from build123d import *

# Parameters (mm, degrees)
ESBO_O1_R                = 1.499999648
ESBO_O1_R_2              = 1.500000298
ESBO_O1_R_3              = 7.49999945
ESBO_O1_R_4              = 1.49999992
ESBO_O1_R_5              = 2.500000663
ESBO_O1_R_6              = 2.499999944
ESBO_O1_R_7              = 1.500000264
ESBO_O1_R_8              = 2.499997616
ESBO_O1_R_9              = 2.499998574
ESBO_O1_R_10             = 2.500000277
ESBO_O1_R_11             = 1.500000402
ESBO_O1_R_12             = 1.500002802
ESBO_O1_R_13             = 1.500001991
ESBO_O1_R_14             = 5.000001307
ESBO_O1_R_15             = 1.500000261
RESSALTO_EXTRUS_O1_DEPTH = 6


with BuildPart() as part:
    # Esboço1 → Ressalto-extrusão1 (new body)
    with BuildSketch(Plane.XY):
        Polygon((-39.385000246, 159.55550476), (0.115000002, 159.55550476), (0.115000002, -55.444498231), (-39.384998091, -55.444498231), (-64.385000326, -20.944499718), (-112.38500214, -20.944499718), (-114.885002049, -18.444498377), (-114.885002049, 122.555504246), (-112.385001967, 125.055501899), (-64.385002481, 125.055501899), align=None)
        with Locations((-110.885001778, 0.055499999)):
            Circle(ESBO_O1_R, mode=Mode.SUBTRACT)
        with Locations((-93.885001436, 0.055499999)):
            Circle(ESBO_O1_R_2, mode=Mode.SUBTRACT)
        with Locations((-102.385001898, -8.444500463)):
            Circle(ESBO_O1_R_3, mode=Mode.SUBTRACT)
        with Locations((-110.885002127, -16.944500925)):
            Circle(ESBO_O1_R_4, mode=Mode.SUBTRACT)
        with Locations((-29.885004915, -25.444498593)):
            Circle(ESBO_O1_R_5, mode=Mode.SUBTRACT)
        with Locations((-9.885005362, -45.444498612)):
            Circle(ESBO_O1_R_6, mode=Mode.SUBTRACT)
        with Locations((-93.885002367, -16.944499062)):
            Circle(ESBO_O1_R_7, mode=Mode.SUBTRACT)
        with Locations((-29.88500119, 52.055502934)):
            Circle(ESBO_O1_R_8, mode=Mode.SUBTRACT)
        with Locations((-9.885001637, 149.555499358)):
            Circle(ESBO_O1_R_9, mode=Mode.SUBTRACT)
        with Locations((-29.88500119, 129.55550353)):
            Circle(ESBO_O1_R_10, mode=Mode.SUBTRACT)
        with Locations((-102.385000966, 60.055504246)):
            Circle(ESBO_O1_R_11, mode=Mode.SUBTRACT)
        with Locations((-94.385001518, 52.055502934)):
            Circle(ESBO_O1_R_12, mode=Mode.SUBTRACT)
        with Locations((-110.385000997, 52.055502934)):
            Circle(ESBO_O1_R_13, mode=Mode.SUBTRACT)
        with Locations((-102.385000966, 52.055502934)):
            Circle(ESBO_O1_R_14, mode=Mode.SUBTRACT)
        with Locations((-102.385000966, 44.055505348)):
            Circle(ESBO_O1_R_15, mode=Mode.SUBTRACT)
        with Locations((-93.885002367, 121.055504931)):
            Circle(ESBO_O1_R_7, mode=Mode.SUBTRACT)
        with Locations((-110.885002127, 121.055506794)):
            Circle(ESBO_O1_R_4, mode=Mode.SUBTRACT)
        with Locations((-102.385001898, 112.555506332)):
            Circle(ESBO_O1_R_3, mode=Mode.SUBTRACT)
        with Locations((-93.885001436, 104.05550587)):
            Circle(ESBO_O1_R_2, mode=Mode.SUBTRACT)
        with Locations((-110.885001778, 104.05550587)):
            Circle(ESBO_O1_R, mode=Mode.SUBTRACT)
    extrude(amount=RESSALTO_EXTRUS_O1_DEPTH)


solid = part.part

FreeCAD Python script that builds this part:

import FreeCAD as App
import Part
import Sketcher

V = App.Vector
Q = App.Units.Quantity

doc = App.newDocument("Part")
body = doc.addObject("PartDesign::Body", "Body")

sketch1 = doc.addObject("Sketcher::SketchObject", "Sketch")
body.addObject(sketch1)
sketch1.AttachmentSupport = (doc.XY_Plane, [""])
sketch1.MapMode = "FlatFace"
sketch1.addGeometry([
    Part.LineSegment(V(0.1, 159.6, 0), V(-39.4, 159.6, 0)),
    Part.LineSegment(V(-39.4, 159.6, 0), V(-64.4, 125.1, 0)),
    Part.LineSegment(V(-64.4, 125.1, 0), V(-112.4, 125.1, 0)),
    Part.LineSegment(V(-112.4, 125.1, 0), V(-114.9, 122.6, 0)),
    Part.LineSegment(V(-114.9, 122.6, 0), V(-114.9, -18.4, 0)),
    Part.LineSegment(V(-114.9, -18.4, 0), V(-112.4, -20.9, 0)),
    Part.LineSegment(V(-112.4, -20.9, 0), V(-64.4, -20.9, 0)),
    Part.LineSegment(V(-64.4, -20.9, 0), V(-39.4, -55.4, 0)),
    Part.LineSegment(V(-39.4, -55.4, 0), V(0.1, -55.4, 0)),
    Part.LineSegment(V(0.1, -55.4, 0), V(0.1, 159.6, 0)),
    Part.Circle(V(-9.9, -45.4, 0), V(0, 0, 1), 2.5),
    Part.Circle(V(-29.9, -25.4, 0), V(0, 0, 1), 2.5),
    Part.Circle(V(-93.9, -16.9, 0), V(0, 0, 1), 1.5),
    Part.Circle(V(-93.9, 0.1, 0), V(0, 0, 1), 1.5),
    Part.Circle(V(-110.9, -16.9, 0), V(0, 0, 1), 1.5),
    Part.Circle(V(-102.4, -8.4, 0), V(0, 0, 1), 7.5),
    Part.Circle(V(-110.9, 0.1, 0), V(0, 0, 1), 1.5),
    Part.Circle(V(-102.4, 44.1, 0), V(0, 0, 1), 1.5),
    Part.Circle(V(-29.9, 52.1, 0), V(0, 0, 1), 2.5),
    Part.Circle(V(-9.9, 149.6, 0), V(0, 0, 1), 2.5),
    Part.Circle(V(-29.9, 129.6, 0), V(0, 0, 1), 2.5),
    Part.Circle(V(-94.4, 52.1, 0), V(0, 0, 1), 1.5),
    Part.Circle(V(-102.4, 52.1, 0), V(0, 0, 1), 5),
    Part.Circle(V(-102.4, 60.1, 0), V(0, 0, 1), 1.5),
    Part.Circle(V(-110.4, 52.1, 0), V(0, 0, 1), 1.5),
    Part.Circle(V(-93.9, 104.1, 0), V(0, 0, 1), 1.5),
    Part.Circle(V(-93.9, 121.1, 0), V(0, 0, 1), 1.5),
    Part.Circle(V(-102.4, 112.6, 0), V(0, 0, 1), 7.5),
    Part.Circle(V(-110.9, 104.1, 0), V(0, 0, 1), 1.5),
    Part.Circle(V(-110.9, 121.1, 0), V(0, 0, 1), 1.5),
], False)
sketch1.addConstraint([
    Sketcher.Constraint("Coincident", 0, 2, 1, 1),
    Sketcher.Constraint("Coincident", 1, 2, 2, 1),
    Sketcher.Constraint("Coincident", 2, 2, 3, 1),
    Sketcher.Constraint("Coincident", 3, 2, 4, 1),
    Sketcher.Constraint("Coincident", 4, 2, 5, 1),
    Sketcher.Constraint("Coincident", 5, 2, 6, 1),
    Sketcher.Constraint("Coincident", 6, 2, 7, 1),
    Sketcher.Constraint("Coincident", 7, 2, 8, 1),
    Sketcher.Constraint("Coincident", 8, 2, 9, 1),
    Sketcher.Constraint("Coincident", 9, 2, 0, 1),
    Sketcher.Constraint("Horizontal", 0),
    Sketcher.Constraint("Horizontal", 2),
    Sketcher.Constraint("Vertical", 4),
    Sketcher.Constraint("Horizontal", 6),
    Sketcher.Constraint("Horizontal", 8),
    Sketcher.Constraint("Vertical", 9),
    Sketcher.Constraint("Equal", 10, 11),
    Sketcher.Constraint("Equal", 12, 13),
    Sketcher.Constraint("Equal", 13, 14),
    Sketcher.Constraint("Equal", 14, 16),
    Sketcher.Constraint("Equal", 16, 17),
    Sketcher.Constraint("Equal", 18, 19),
    Sketcher.Constraint("Equal", 19, 20),
    Sketcher.Constraint("Equal", 17, 23),
    Sketcher.Constraint("Equal", 23, 24),
    Sketcher.Constraint("Equal", 24, 25),
    Sketcher.Constraint("Equal", 25, 26),
    Sketcher.Constraint("Equal", 15, 27),
    Sketcher.Constraint("Equal", 26, 28),
    Sketcher.Constraint("Equal", 28, 29),
    Sketcher.Constraint("Perpendicular", 3, 5),
    Sketcher.Constraint("Horizontal", 12, 3, 14, 3),
    Sketcher.Constraint("Horizontal", 13, 3, 16, 3),
    Sketcher.Constraint("Horizontal", 18, 3, 21, 3),
    Sketcher.Constraint("Horizontal", 21, 3, 22, 3),
    Sketcher.Constraint("Horizontal", 22, 3, 24, 3),
    Sketcher.Constraint("Horizontal", 25, 3, 28, 3),
    Sketcher.Constraint("Horizontal", 26, 3, 29, 3),
    Sketcher.Constraint("Vertical", 12, 3, 13, 3),
    Sketcher.Constraint("Vertical", 14, 3, 16, 3),
    Sketcher.Constraint("Vertical", 15, 3, 17, 3),
    Sketcher.Constraint("Vertical", 18, 3, 20, 3),
    Sketcher.Constraint("Vertical", 17, 3, 22, 3),
    Sketcher.Constraint("Vertical", 22, 3, 23, 3),
    Sketcher.Constraint("Vertical", 13, 3, 25, 3),
    Sketcher.Constraint("Vertical", 25, 3, 26, 3),
    Sketcher.Constraint("Vertical", 23, 3, 27, 3),
    Sketcher.Constraint("Vertical", 16, 3, 28, 3),
    Sketcher.Constraint("Vertical", 28, 3, 29, 3),
    Sketcher.Constraint("Vertical", 2, 2, 5, 2),
    Sketcher.Constraint("Diameter", 10, Q("5 mm")),
    Sketcher.Constraint("Diameter", 12, Q("3.000001 mm")),
    Sketcher.Constraint("Diameter", 15, Q("14.999999 mm")),
    Sketcher.Constraint("Diameter", 20, Q("5.000001 mm")),
    Sketcher.Constraint("DistanceX", 2, 2, 2, 1, Q("47.999999 mm")),
    Sketcher.Constraint("DistanceX", 6, 1, 6, 2, Q("48.000002 mm")),
    Sketcher.Constraint("Angle", 5, Q("-45.000016 deg")),
    Sketcher.Constraint("DistanceX", 0, 2, 0, 1, Q("39.5 mm")),
    Sketcher.Constraint("DistanceX", 8, 1, 8, 2, Q("39.499998 mm")),
    Sketcher.Constraint("DistanceX", 11, 3, 10, 3, Q("20 mm")),
    Sketcher.Constraint("DistanceY", 10, 3, 11, 3, Q("20 mm")),
    Sketcher.Constraint("DistanceY", 12, 3, 13, 3, Q("16.999999 mm")),
    Sketcher.Constraint("DistanceX", 14, 3, 12, 3, Q("17 mm")),
    Sketcher.Constraint("DistanceY", 11, 3, 15, 3, Q("16.999998 mm")),
    Sketcher.Constraint("DistanceX", 13, 3, 18, 3, Q("64 mm")),
    Sketcher.Constraint("DistanceY", 12, 3, 18, 3, Q("69.000002 mm")),
    Sketcher.Constraint("DistanceX", 18, 3, 19, 3, Q("20 mm")),
    Sketcher.Constraint("DistanceX", 17, 3, 21, 3, Q("7.999999 mm")),
    Sketcher.Constraint("DistanceY", 22, 3, 23, 3, Q("8.000001 mm")),
    Sketcher.Constraint("DistanceY", 17, 3, 23, 3, Q("15.999999 mm")),
    Sketcher.Constraint("DistanceX", 24, 3, 22, 3, Q("8 mm")),
    Sketcher.Constraint("DistanceY", 23, 3, 25, 3, Q("44.000002 mm")),
    Sketcher.Constraint("DistanceY", 25, 3, 26, 3, Q("16.999999 mm")),
    Sketcher.Constraint("DistanceY", 20, 3, 0, 2, Q("30.000001 mm")),
    Sketcher.Constraint("DistanceX", 27, 3, 0, 2, Q("63.000002 mm")),
    Sketcher.Constraint("DistanceY", 27, 3, 0, 2, Q("46.999998 mm")),
    Sketcher.Constraint("DistanceX", 27, 3, 1, 2, Q("37.999999 mm")),
    Sketcher.Constraint("DistanceX", 3, 2, 29, 3, Q("4 mm")),
    Sketcher.Constraint("DistanceY", 5, 2, 14, 3, Q("3.999999 mm")),
    Sketcher.Constraint("DistanceY", 7, 2, 10, 3, Q("10 mm")),
    Sketcher.Constraint("DistanceX", 19, 3, 9, 2, Q("10.000002 mm")),
    Sketcher.Constraint("DistanceY", 11, 3, 12, 3, Q("8.5 mm")),
    Sketcher.Constraint("DistanceY", 13, 3, 19, 3, Q("149.499999 mm")),
    Sketcher.Constraint("DistanceY", 18, 3, 20, 3, Q("77.500001 mm")),
    Sketcher.Constraint("DistanceY", 1, 2, 20, 3, Q("4.500002 mm")),
    Sketcher.Constraint("Diameter", 21, Q("3.000006 mm")),
    Sketcher.Constraint("Diameter", 22, Q("10.000003 mm")),
    Sketcher.Constraint("DistanceX", 13, 3, -1, 1, Q("93.885001 mm")),
    Sketcher.Constraint("DistanceY", 10, 3, -1, 1, Q("45.444499 mm")),
    Sketcher.Constraint("DistanceX", 10, 3, -1, 1, Q("9.885005 mm")),
])
pad1 = doc.addObject("PartDesign::Pad", "Pad")
body.addObject(pad1)
pad1.Profile = sketch1
pad1.Length = 6

doc.recompute()
